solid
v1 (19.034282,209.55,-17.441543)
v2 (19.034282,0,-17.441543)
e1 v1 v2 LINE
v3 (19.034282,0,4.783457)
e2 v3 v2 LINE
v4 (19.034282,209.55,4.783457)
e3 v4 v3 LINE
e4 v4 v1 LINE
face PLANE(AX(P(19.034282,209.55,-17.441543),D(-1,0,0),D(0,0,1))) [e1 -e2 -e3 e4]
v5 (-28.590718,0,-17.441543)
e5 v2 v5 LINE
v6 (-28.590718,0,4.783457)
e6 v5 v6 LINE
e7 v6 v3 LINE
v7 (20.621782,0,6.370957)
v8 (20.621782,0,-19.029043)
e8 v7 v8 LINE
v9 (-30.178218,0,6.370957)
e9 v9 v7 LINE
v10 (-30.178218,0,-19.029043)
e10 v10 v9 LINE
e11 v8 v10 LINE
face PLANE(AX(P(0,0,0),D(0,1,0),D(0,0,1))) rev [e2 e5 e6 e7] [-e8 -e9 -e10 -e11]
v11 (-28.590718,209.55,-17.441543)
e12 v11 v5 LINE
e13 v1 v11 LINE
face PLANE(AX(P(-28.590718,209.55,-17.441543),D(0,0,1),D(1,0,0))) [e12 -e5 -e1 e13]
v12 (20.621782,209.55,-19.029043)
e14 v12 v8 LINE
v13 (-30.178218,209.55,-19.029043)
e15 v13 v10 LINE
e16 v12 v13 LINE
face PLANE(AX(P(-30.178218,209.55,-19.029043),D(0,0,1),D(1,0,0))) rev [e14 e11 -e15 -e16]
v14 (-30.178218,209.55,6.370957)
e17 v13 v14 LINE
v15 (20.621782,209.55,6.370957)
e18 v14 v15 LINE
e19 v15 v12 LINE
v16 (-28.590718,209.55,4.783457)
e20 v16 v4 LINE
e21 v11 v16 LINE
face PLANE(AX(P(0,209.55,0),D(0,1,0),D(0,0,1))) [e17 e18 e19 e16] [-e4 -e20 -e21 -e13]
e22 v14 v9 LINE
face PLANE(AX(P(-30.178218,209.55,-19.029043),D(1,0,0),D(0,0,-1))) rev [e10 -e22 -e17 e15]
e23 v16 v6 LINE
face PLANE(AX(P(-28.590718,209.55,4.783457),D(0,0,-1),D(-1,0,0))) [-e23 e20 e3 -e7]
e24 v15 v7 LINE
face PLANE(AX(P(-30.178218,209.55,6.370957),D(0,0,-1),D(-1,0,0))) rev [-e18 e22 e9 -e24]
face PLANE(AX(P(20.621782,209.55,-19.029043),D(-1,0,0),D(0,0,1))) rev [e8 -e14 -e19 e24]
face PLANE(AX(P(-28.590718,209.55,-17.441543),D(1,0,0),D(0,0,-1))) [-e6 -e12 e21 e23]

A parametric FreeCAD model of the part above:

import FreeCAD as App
import Part
import Sketcher
Q = App.Units.Quantity

doc = App.newDocument("Part")
body = doc.addObject("PartDesign::Body", "Body")

sketch1 = body.newObject("Sketcher::SketchObject", "Sketch")
sketch1.AttachmentSupport = (doc.getObject("XZ_Plane"), [""])
sketch1.MapMode = "FlatFace"
sketch1.addGeometry(Part.LineSegment(App.Vector(-30, -19, 0), App.Vector(-30, 6, 0)), False)
sketch1.addGeometry(Part.LineSegment(App.Vector(-30, 6, 0), App.Vector(21, 6, 0)), False)
sketch1.addGeometry(Part.LineSegment(App.Vector(21, 6, 0), App.Vector(21, -19, 0)), False)
sketch1.addGeometry(Part.LineSegment(App.Vector(21, -19, 0), App.Vector(-30, -19, 0)), False)
sketch1.addGeometry(Part.LineSegment(App.Vector(19, 5, 0), App.Vector(-29, 5, 0)), False)
sketch1.addGeometry(Part.LineSegment(App.Vector(-29, 5, 0), App.Vector(-29, -17, 0)), False)
sketch1.addGeometry(Part.LineSegment(App.Vector(-29, -17, 0), App.Vector(19, -17, 0)), False)
sketch1.addGeometry(Part.LineSegment(App.Vector(19, -17, 0), App.Vector(19, 5, 0)), False)
sketch1.addConstraint(Sketcher.Constraint("Coincident", 0, 2, 1, 1))
sketch1.addConstraint(Sketcher.Constraint("Coincident", 1, 2, 2, 1))
sketch1.addConstraint(Sketcher.Constraint("Coincident", 2, 2, 3, 1))
sketch1.addConstraint(Sketcher.Constraint("Coincident", 3, 2, 0, 1))
sketch1.addConstraint(Sketcher.Constraint("Coincident", 4, 2, 5, 1))
sketch1.addConstraint(Sketcher.Constraint("Coincident", 5, 2, 6, 1))
sketch1.addConstraint(Sketcher.Constraint("Coincident", 6, 2, 7, 1))
sketch1.addConstraint(Sketcher.Constraint("Coincident", 7, 2, 4, 1))
sketch1.addConstraint(Sketcher.Constraint("Vertical", 0))
sketch1.addConstraint(Sketcher.Constraint("Horizontal", 1))
sketch1.addConstraint(Sketcher.Constraint("Vertical", 2))
sketch1.addConstraint(Sketcher.Constraint("Horizontal", 3))
sketch1.addConstraint(Sketcher.Constraint("Horizontal", 4))
sketch1.addConstraint(Sketcher.Constraint("Vertical", 5))
sketch1.addConstraint(Sketcher.Constraint("Horizontal", 6))
sketch1.addConstraint(Sketcher.Constraint("Vertical", 7))
sketch1.addConstraint(Sketcher.Constraint("DistanceX", 1, 1, 1, 2, Q("2 in")))
sketch1.addConstraint(Sketcher.Constraint("DistanceY", 0, 1, 0, 2, Q("1 in")))
sketch1.addConstraint(Sketcher.Constraint("DistanceX", 4, 2, 4, 1, Q("1.875 in")))
sketch1.addConstraint(Sketcher.Constraint("DistanceY", 5, 2, 5, 1, Q("0.875 in")))
sketch1.addConstraint(Sketcher.Constraint("DistanceX", 0, 2, 4, 2, Q("0.0625 in")))
sketch1.addConstraint(Sketcher.Constraint("DistanceY", 4, 2, 0, 2, Q("0.0625 in")))
sketch1.addConstraint(Sketcher.Constraint("DistanceX", 0, 2, -1, 1, Q("30.178218 mm")))
sketch1.addConstraint(Sketcher.Constraint("DistanceY", -1, 1, 0, 2, Q("6.370957 mm")))
pad1 = body.newObject("PartDesign::Pad", "Pad")
pad1.Profile = sketch1
pad1.Length = Q("8.25 in")
pad1.Reversed = True

doc.recompute()
